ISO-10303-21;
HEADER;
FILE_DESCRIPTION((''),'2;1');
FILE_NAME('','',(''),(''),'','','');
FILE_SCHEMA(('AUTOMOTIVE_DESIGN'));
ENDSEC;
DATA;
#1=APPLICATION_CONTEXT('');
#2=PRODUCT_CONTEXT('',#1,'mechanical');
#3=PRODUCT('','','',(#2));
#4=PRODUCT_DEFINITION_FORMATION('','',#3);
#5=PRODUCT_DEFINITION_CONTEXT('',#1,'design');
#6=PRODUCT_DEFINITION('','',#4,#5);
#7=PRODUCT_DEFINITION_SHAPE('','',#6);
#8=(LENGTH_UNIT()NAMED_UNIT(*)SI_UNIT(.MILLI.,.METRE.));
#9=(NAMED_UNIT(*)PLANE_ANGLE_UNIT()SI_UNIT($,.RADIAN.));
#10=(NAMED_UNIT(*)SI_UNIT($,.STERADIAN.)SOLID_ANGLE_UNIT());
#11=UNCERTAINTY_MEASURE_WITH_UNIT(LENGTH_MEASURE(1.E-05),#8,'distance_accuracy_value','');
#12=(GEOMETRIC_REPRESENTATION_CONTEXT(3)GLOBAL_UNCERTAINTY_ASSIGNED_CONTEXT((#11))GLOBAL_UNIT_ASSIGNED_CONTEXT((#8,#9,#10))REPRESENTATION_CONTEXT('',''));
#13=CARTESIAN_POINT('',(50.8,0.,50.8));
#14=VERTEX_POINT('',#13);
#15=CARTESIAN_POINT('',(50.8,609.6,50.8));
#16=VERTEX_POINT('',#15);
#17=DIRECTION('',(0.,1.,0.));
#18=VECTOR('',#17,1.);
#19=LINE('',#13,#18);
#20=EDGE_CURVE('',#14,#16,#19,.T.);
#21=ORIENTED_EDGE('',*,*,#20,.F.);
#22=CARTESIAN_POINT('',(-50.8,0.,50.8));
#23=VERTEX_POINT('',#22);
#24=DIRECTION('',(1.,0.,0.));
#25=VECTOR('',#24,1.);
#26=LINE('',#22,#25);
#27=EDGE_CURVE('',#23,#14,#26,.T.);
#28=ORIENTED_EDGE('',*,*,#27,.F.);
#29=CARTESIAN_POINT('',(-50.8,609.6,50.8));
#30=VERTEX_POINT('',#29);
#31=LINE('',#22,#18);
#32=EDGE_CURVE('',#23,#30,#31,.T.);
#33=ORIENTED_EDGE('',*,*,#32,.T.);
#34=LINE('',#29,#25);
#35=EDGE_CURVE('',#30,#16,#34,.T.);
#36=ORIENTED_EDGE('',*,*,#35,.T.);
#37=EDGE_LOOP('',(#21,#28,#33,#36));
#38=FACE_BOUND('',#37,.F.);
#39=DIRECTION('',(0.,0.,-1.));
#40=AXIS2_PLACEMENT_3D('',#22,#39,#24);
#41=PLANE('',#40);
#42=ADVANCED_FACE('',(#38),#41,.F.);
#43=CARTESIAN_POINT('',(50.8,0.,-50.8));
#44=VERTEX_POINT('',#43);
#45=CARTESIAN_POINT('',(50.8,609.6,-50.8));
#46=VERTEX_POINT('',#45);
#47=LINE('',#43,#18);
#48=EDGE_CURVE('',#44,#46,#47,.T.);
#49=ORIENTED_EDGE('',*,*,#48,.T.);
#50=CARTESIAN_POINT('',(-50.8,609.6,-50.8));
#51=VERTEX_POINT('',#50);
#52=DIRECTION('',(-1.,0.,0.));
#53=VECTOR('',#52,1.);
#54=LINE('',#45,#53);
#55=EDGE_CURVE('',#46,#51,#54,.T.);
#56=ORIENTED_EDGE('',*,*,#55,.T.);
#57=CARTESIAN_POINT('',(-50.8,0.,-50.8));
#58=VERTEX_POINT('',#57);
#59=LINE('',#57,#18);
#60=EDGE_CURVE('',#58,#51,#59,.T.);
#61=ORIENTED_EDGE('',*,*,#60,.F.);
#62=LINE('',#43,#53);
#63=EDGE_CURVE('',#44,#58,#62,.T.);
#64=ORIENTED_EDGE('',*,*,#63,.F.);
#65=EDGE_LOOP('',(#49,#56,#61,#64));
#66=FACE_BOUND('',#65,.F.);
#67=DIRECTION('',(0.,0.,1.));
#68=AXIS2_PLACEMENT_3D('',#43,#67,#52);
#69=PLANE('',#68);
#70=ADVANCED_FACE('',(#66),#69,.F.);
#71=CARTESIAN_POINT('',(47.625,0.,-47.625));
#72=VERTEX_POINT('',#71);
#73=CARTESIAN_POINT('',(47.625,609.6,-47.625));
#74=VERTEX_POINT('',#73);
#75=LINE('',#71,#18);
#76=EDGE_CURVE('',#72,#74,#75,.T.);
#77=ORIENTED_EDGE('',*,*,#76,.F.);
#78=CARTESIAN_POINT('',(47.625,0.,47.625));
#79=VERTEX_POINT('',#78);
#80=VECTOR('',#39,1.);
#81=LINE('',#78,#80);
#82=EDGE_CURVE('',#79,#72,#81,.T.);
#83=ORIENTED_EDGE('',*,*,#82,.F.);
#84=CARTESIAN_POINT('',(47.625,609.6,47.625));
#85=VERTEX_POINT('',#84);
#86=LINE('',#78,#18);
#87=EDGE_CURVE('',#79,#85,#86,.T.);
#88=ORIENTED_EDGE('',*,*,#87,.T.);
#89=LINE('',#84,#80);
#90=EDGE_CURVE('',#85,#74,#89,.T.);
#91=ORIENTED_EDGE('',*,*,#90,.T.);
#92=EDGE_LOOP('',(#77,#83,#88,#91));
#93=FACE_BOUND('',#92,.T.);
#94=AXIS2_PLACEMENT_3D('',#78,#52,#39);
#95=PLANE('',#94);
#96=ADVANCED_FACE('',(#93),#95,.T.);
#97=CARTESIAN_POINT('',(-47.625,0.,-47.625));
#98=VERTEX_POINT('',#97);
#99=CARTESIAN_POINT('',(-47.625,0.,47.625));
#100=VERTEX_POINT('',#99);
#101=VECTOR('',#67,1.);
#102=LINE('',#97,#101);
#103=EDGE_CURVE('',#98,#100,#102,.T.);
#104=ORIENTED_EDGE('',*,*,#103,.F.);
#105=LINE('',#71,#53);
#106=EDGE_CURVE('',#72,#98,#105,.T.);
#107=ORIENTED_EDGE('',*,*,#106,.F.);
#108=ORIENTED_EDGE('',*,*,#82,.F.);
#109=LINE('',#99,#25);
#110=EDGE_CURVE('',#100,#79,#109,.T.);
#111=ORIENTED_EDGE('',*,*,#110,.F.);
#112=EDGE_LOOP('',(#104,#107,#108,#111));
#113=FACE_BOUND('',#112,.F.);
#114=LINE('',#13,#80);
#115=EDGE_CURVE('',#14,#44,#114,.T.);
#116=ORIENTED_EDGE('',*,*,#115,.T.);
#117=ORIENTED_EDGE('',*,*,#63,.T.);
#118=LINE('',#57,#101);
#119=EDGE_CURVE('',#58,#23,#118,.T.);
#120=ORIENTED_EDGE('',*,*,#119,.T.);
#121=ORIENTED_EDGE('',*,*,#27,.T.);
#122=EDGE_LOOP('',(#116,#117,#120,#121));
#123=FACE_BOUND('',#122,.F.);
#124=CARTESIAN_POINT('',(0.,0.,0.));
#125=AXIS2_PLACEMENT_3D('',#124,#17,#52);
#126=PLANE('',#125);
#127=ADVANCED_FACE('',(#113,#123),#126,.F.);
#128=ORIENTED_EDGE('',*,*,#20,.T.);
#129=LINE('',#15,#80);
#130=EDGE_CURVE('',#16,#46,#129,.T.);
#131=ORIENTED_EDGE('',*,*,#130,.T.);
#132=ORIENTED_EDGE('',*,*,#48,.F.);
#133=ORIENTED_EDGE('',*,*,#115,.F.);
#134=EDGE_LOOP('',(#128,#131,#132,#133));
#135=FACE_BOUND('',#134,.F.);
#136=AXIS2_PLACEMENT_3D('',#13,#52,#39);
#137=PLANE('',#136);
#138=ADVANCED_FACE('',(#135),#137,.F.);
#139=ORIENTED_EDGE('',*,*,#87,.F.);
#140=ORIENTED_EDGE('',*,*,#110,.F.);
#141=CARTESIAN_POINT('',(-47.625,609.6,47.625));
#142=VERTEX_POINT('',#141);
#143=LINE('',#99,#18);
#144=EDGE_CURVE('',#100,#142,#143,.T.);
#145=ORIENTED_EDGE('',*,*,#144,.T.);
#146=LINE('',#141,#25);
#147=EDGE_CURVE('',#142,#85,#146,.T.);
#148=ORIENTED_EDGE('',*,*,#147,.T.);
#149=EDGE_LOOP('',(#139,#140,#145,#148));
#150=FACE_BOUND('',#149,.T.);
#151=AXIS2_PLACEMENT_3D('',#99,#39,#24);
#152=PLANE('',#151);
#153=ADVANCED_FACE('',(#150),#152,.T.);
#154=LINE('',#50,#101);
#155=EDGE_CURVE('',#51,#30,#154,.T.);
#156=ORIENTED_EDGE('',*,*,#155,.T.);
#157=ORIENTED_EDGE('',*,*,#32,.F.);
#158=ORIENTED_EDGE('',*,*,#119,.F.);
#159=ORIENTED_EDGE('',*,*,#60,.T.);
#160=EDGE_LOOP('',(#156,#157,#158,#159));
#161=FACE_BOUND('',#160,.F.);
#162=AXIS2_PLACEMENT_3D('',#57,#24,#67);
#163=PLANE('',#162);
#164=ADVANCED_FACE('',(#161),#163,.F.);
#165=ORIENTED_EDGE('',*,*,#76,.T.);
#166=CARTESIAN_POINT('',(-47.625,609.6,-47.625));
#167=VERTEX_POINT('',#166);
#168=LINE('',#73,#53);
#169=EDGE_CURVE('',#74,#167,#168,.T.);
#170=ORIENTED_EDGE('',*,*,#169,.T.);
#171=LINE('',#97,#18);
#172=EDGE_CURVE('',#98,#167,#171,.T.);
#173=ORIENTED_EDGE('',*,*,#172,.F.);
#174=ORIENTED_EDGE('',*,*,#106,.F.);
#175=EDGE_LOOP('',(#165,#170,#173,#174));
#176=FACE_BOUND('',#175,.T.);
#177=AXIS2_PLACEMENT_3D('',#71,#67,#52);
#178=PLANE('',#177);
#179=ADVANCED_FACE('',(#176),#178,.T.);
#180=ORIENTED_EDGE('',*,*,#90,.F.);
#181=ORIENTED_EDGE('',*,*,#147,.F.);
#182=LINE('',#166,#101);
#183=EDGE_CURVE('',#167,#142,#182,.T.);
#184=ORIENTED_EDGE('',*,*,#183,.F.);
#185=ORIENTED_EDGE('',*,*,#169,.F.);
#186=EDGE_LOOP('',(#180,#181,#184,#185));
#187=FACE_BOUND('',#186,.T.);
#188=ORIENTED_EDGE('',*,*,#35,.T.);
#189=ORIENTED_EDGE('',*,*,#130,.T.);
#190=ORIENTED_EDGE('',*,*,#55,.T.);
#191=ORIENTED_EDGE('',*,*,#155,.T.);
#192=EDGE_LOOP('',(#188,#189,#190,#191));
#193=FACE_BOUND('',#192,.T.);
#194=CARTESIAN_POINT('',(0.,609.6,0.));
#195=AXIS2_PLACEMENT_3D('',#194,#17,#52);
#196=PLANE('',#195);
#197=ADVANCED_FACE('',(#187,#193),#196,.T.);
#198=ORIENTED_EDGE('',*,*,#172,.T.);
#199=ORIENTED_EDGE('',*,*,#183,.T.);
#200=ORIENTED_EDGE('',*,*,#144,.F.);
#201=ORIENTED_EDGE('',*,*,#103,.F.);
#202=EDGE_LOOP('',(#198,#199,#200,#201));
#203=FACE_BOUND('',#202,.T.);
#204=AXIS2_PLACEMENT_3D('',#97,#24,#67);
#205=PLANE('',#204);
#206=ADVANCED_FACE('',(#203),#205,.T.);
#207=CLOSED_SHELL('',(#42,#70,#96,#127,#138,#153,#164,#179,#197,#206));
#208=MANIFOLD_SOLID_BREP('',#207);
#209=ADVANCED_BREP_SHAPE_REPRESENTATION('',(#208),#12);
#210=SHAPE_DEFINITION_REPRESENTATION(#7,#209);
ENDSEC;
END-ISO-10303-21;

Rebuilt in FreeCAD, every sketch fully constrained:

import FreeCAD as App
import Part
import Sketcher

V = App.Vector
Q = App.Units.Quantity


def add_polygon(sketch, points):
    """Adds a closed chain of lines whose ends are joined by coincident constraints."""
    first, n = sketch.GeometryCount, len(points)
    for a, b in zip(points, points[1:] + points[:1]):
        sketch.addGeometry(Part.LineSegment(App.Vector(*a, 0), App.Vector(*b, 0)), False)
    for i in range(n):
        sketch.addConstraint(Sketcher.Constraint("Coincident", first + i, 2, first + (i + 1) % n, 1))

doc = App.newDocument("Part")
params = doc.addObject("Spreadsheet::Sheet", "Params")
for row, (alias, value) in enumerate([
    ("sketch1_width", "4 in"),
    ("pad1_length", "24 in"),
], start=1):
    params.set(f"A{row}", alias)
    params.set(f"B{row}", "=" + value)
    params.setAlias(f"B{row}", alias)

body = doc.addObject("PartDesign::Body", "Body")

# Sketch on XZ plane
sketch1 = doc.addObject("Sketcher::SketchObject", "Sketch")
body.addObject(sketch1)
sketch1.AttachmentSupport = (doc.XZ_Plane, [""])
sketch1.MapMode = "FlatFace"
add_polygon(sketch1, [(-50.8, 50.8), (50.8, 50.8), (50.8, -50.8), (-50.8, -50.8)])  # lines 0-3
add_polygon(sketch1, [(47.625, -47.625), (47.625, 47.625), (-47.625, 47.625), (-47.625, -47.625)])  # lines 4-7
sketch1.addConstraint(Sketcher.Constraint("Horizontal", 0))
sketch1.addConstraint(Sketcher.Constraint("Vertical", 1))
sketch1.addConstraint(Sketcher.Constraint("Horizontal", 2))
sketch1.addConstraint(Sketcher.Constraint("Vertical", 3))
sketch1.addConstraint(Sketcher.Constraint("Vertical", 4))
sketch1.addConstraint(Sketcher.Constraint("Horizontal", 5))
sketch1.addConstraint(Sketcher.Constraint("Vertical", 6))
sketch1.addConstraint(Sketcher.Constraint("Horizontal", 7))
sketch1.addConstraint(Sketcher.Constraint("Symmetric", 0, 2, 2, 2, -1, 1))
sketch1.addConstraint(Sketcher.Constraint("Symmetric", 4, 2, 6, 2, -1, 1))
sketch1.addConstraint(Sketcher.Constraint("Equal", 2, 1))
sketch1.addConstraint(Sketcher.Constraint("Equal", 7, 4))
sketch1.addConstraint(Sketcher.Constraint("DistanceX", 0, 1, 0, 2, Q("4 in")))
sketch1.addConstraint(Sketcher.Constraint("DistanceX", 4, 2, 0, 2, Q("0.125 in")))
sketch1.setExpression("Constraints[20]", "Params.sketch1_width")
pad1 = doc.addObject("PartDesign::Pad", "Pad")
body.addObject(pad1)
pad1.Profile = sketch1
pad1.setExpression("Length", "Params.pad1_length")
pad1.Reversed = True

doc.recompute()
